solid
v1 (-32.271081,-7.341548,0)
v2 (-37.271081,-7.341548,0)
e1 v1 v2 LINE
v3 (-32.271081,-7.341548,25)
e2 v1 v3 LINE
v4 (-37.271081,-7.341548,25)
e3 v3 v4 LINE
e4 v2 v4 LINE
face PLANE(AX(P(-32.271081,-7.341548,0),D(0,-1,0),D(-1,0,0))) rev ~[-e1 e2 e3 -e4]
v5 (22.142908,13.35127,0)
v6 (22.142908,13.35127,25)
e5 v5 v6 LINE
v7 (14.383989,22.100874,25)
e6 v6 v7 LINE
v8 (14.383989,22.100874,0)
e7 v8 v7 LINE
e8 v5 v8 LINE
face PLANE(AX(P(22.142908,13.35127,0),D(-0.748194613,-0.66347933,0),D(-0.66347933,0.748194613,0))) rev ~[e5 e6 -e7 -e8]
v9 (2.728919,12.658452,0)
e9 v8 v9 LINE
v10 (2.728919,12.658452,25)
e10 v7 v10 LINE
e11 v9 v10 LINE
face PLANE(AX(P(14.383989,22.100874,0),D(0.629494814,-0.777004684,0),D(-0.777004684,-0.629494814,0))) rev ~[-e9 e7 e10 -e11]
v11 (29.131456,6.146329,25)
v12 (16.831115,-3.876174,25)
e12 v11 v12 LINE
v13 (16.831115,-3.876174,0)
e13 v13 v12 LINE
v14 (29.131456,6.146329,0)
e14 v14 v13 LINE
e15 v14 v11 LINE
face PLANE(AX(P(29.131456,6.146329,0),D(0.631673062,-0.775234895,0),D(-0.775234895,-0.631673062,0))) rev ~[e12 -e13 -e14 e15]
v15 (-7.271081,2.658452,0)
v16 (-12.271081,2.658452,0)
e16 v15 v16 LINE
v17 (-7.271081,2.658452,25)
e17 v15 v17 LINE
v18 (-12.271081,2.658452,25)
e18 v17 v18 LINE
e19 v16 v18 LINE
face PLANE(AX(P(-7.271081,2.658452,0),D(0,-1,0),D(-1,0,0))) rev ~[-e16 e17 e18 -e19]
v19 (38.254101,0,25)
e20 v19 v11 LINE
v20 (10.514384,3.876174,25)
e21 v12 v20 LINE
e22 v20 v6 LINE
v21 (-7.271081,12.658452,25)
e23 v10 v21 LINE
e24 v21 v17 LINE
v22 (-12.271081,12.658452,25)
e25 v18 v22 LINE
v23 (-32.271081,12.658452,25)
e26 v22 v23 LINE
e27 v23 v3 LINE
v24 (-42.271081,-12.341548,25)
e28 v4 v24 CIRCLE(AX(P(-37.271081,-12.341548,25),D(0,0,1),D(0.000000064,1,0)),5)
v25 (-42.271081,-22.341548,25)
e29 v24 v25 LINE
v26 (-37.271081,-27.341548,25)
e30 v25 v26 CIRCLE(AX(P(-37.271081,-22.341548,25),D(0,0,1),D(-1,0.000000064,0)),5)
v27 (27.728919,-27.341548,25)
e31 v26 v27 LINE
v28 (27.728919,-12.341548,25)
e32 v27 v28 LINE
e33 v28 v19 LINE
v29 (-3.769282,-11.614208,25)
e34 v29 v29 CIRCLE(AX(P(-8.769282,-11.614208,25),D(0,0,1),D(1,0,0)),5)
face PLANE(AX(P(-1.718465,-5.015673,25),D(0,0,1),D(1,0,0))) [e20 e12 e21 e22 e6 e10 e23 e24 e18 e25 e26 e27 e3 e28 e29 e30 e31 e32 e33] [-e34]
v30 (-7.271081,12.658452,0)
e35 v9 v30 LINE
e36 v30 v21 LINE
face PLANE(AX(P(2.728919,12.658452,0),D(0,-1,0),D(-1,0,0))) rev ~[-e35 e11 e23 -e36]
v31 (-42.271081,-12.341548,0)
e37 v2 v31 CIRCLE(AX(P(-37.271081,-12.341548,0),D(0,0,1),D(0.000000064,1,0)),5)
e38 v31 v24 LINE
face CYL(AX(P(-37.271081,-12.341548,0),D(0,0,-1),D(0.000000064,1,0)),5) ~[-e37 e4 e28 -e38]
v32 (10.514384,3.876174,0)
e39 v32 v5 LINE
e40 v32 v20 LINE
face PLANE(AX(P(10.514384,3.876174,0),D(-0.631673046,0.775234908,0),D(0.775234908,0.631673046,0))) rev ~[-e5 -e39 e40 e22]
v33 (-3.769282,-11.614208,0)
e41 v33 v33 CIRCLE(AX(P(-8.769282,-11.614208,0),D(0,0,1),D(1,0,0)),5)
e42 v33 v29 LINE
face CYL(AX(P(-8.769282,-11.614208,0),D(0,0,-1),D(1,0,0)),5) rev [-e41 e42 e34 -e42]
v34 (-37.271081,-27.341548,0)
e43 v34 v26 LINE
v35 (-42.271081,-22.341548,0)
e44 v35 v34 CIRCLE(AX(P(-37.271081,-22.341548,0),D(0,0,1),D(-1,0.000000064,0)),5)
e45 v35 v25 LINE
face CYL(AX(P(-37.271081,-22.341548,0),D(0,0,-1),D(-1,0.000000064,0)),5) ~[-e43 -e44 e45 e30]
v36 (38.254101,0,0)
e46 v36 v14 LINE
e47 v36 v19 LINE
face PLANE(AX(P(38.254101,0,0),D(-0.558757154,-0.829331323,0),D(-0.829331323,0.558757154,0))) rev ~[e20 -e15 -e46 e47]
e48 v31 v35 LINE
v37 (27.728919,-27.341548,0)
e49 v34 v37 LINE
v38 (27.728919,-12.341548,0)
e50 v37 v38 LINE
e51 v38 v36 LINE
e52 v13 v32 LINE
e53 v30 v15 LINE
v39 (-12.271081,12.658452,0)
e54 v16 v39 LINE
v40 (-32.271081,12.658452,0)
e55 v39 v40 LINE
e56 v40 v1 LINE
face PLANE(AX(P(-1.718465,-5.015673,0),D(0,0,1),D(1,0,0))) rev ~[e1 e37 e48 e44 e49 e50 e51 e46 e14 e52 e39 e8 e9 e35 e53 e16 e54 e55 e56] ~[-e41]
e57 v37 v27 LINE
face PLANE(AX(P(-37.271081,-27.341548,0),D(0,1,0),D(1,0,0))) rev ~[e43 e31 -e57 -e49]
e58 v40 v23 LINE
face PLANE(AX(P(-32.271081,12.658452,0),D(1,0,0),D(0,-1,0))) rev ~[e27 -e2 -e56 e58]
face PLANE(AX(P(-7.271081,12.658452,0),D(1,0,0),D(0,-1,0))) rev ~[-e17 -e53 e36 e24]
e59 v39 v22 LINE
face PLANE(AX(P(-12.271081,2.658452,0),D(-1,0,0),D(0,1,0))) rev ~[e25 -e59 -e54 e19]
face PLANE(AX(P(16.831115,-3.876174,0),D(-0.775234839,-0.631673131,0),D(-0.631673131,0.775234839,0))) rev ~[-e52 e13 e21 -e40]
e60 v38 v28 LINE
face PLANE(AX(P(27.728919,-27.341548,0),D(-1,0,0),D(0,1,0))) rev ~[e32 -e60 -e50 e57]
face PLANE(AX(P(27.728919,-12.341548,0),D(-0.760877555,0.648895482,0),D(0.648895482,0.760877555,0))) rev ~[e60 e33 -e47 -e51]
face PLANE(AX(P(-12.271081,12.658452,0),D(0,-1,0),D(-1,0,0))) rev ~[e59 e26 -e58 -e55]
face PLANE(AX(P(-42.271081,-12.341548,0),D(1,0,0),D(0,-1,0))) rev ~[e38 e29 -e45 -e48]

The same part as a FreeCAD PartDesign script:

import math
import FreeCAD as App
import Part
import Sketcher
from FreeCAD import Vector

doc = App.newDocument("Part")
body = doc.addObject("PartDesign::Body", "Body")

sketch1 = body.newObject("Sketcher::SketchObject", "Sketch")
sketch1.AttachmentSupport = (doc.getObject("XY_Plane"), [""])
sketch1.MapMode = "FlatFace"
sketch1.addGeometry(Part.LineSegment(Vector(-37.3, -27.3, 0), Vector(27.7, -27.3, 0)), False)
sketch1.addGeometry(Part.LineSegment(Vector(27.7, -27.3, 0), Vector(27.7, -12.3, 0)), False)
sketch1.addGeometry(Part.LineSegment(Vector(27.7, -12.3, 0), Vector(38.3, 0, 0)), False)
sketch1.addGeometry(Part.LineSegment(Vector(38.3, 0, 0), Vector(29.1, 6.1, 0)), False)
sketch1.addGeometry(Part.LineSegment(Vector(29.1, 6.1, 0), Vector(16.8, -3.9, 0)), False)
sketch1.addGeometry(Part.LineSegment(Vector(16.8, -3.9, 0), Vector(10.5, 3.9, 0)), False)
sketch1.addGeometry(Part.LineSegment(Vector(10.5, 3.9, 0), Vector(22.1, 13.4, 0)), False)
sketch1.addGeometry(Part.LineSegment(Vector(22.1, 13.4, 0), Vector(14.4, 22.1, 0)), False)
sketch1.addGeometry(Part.LineSegment(Vector(14.4, 22.1, 0), Vector(2.7, 12.7, 0)), False)
sketch1.addGeometry(Part.LineSegment(Vector(2.7, 12.7, 0), Vector(-7.3, 12.7, 0)), False)
sketch1.addGeometry(Part.LineSegment(Vector(-7.3, 12.7, 0), Vector(-7.3, 2.7, 0)), False)
sketch1.addGeometry(Part.LineSegment(Vector(-7.3, 2.7, 0), Vector(-12.3, 2.7, 0)), False)
sketch1.addGeometry(Part.LineSegment(Vector(-12.3, 2.7, 0), Vector(-12.3, 12.7, 0)), False)
sketch1.addGeometry(Part.LineSegment(Vector(-12.3, 12.7, 0), Vector(-32.3, 12.7, 0)), False)
sketch1.addGeometry(Part.LineSegment(Vector(-32.3, 12.7, 0), Vector(-32.3, -7.3, 0)), False)
sketch1.addGeometry(Part.LineSegment(Vector(-32.3, -7.3, 0), Vector(-37.3, -7.3, 0)), False)
sketch1.addGeometry(Part.ArcOfCircle(Part.Circle(Vector(-37.3, -12.3, 0), Vector(0, 0, 1), 5), math.radians(90), math.radians(180)), False)
sketch1.addGeometry(Part.LineSegment(Vector(-42.3, -12.3, 0), Vector(-42.3, -22.3, 0)), False)
sketch1.addGeometry(Part.ArcOfCircle(Part.Circle(Vector(-37.3, -22.3, 0), Vector(0, 0, 1), 5), math.radians(180), math.radians(270)), False)
sketch1.addGeometry(Part.Circle(Vector(-8.8, -11.6, 0), Vector(0, 0, 1), 5), False)
sketch1.addConstraint(Sketcher.Constraint("Coincident", 0, 2, 1, 1))
sketch1.addConstraint(Sketcher.Constraint("Coincident", 1, 2, 2, 1))
sketch1.addConstraint(Sketcher.Constraint("Coincident", 2, 2, 3, 1))
sketch1.addConstraint(Sketcher.Constraint("Coincident", 3, 2, 4, 1))
sketch1.addConstraint(Sketcher.Constraint("Coincident", 4, 2, 5, 1))
sketch1.addConstraint(Sketcher.Constraint("Coincident", 5, 2, 6, 1))
sketch1.addConstraint(Sketcher.Constraint("Coincident", 6, 2, 7, 1))
sketch1.addConstraint(Sketcher.Constraint("Coincident", 7, 2, 8, 1))
sketch1.addConstraint(Sketcher.Constraint("Coincident", 8, 2, 9, 1))
sketch1.addConstraint(Sketcher.Constraint("Coincident", 9, 2, 10, 1))
sketch1.addConstraint(Sketcher.Constraint("Coincident", 10, 2, 11, 1))
sketch1.addConstraint(Sketcher.Constraint("Coincident", 11, 2, 12, 1))
sketch1.addConstraint(Sketcher.Constraint("Coincident", 12, 2, 13, 1))
sketch1.addConstraint(Sketcher.Constraint("Coincident", 13, 2, 14, 1))
sketch1.addConstraint(Sketcher.Constraint("Coincident", 14, 2, 15, 1))
sketch1.addConstraint(Sketcher.Constraint("Tangent", 15, 2, 16, 1))
sketch1.addConstraint(Sketcher.Constraint("Tangent", 16, 2, 17, 1))
sketch1.addConstraint(Sketcher.Constraint("Tangent", 17, 2, 18, 1))
sketch1.addConstraint(Sketcher.Constraint("Tangent", 18, 2, 0, 1))
sketch1.addConstraint(Sketcher.Constraint("Horizontal", 0))
sketch1.addConstraint(Sketcher.Constraint("Vertical", 1))
sketch1.addConstraint(Sketcher.Constraint("Horizontal", 9))
sketch1.addConstraint(Sketcher.Constraint("Vertical", 10))
sketch1.addConstraint(Sketcher.Constraint("Horizontal", 11))
sketch1.addConstraint(Sketcher.Constraint("Vertical", 12))
sketch1.addConstraint(Sketcher.Constraint("Horizontal", 13))
sketch1.addConstraint(Sketcher.Constraint("Vertical", 14))
sketch1.addConstraint(Sketcher.Constraint("Horizontal", 15))
sketch1.addConstraint(Sketcher.Constraint("Vertical", 17))
sketch1.addConstraint(Sketcher.Constraint("Equal", 16, 18))
sketch1.addConstraint(Sketcher.Constraint("Equal", 18, 19))
sketch1.addConstraint(Sketcher.Constraint("PointOnObject", 2, 2, -1))
sketch1.addConstraint(Sketcher.Constraint("Perpendicular", 4, 5))
sketch1.addConstraint(Sketcher.Constraint("Perpendicular", 5, 6))
sketch1.addConstraint(Sketcher.Constraint("Horizontal", 16, 3, 1, 2))
sketch1.addConstraint(Sketcher.Constraint("Horizontal", 9, 2, 12, 2))
sketch1.addConstraint(Sketcher.Constraint("Equal", 11, 15))
sketch1.addConstraint(Sketcher.Constraint("Equal", 9, 10))
sketch1.addConstraint(Sketcher.Constraint("Equal", 13, 14))
sketch1.addConstraint(Sketcher.Constraint("Equal", 12, 17))
sketch1.addConstraint(Sketcher.Constraint("Equal", 6, 8))
sketch1.addConstraint(Sketcher.Constraint("Diameter", 19, 10.0))
sketch1.addConstraint(Sketcher.Constraint("DistanceX", 0, 1, 0, 2, 65.0))
sketch1.addConstraint(Sketcher.Constraint("DistanceX", 9, 2, 9, 1, 10.0))
sketch1.addConstraint(Sketcher.Constraint("DistanceX", 11, 2, 11, 1, 5.0))
sketch1.addConstraint(Sketcher.Constraint("DistanceX", 13, 2, 13, 1, 20.0))
sketch1.addConstraint(Sketcher.Constraint("Distance", 3, 11.000001))
sketch1.addConstraint(Sketcher.Constraint("Distance", 5, 10.0))
sketch1.addConstraint(Sketcher.Constraint("Distance", 6, 15.0))
sketch1.addConstraint(Sketcher.Constraint("Distance", 4, 15.866599))
sketch1.addConstraint(Sketcher.Constraint("DistanceX", -1, 1, 2, 2, 38.254101))
sketch1.addConstraint(Sketcher.Constraint("DistanceX", 16, 3, 19, 3, 28.501799))
sketch1.addConstraint(Sketcher.Constraint("DistanceY", 5, 2, 7, 2, 18.2247))
sketch1.addConstraint(Sketcher.Constraint("Distance", 2, 16.22015))
sketch1.addConstraint(Sketcher.Constraint("Distance", 7, 11.694289))
sketch1.addConstraint(Sketcher.Constraint("DistanceX", 16, 3, -1, 1, 37.271081))
sketch1.addConstraint(Sketcher.Constraint("DistanceY", -1, 1, 3, 2, 6.146329))
sketch1.addConstraint(Sketcher.Constraint("DistanceY", 16, 3, 19, 3, 0.72734))
pad1 = body.newObject("PartDesign::Pad", "Pad")
pad1.Profile = sketch1
pad1.Length = 25

sketch2 = body.newObject("Sketcher::SketchObject", "Sketch001")
sketch2.AttachmentSupport = (doc.getObject("XY_Plane"), [""])
sketch2.MapMode = "FlatFace"
sketch2.addGeometry(Part.LineSegment(Vector(-37.3, -27.3, 0), Vector(27.7, -27.3, 0)), False)
sketch2.addGeometry(Part.LineSegment(Vector(27.7, -27.3, 0), Vector(27.7, -12.3, 0)), False)
sketch2.addGeometry(Part.LineSegment(Vector(27.7, -12.3, 0), Vector(38.3, 0, 0)), False)
sketch2.addGeometry(Part.LineSegment(Vector(38.3, 0, 0), Vector(29.1, 6.1, 0)), False)
sketch2.addGeometry(Part.LineSegment(Vector(29.1, 6.1, 0), Vector(16.8, -3.9, 0)), False)
sketch2.addGeometry(Part.LineSegment(Vector(16.8, -3.9, 0), Vector(10.5, 3.9, 0)), False)
sketch2.addGeometry(Part.LineSegment(Vector(10.5, 3.9, 0), Vector(22.1, 13.4, 0)), False)
sketch2.addGeometry(Part.LineSegment(Vector(22.1, 13.4, 0), Vector(14.4, 22.1, 0)), False)
sketch2.addGeometry(Part.LineSegment(Vector(14.4, 22.1, 0), Vector(2.7, 12.7, 0)), False)
sketch2.addGeometry(Part.LineSegment(Vector(2.7, 12.7, 0), Vector(-7.3, 12.7, 0)), False)
sketch2.addGeometry(Part.LineSegment(Vector(-7.3, 12.7, 0), Vector(-7.3, 2.7, 0)), False)
sketch2.addGeometry(Part.LineSegment(Vector(-7.3, 2.7, 0), Vector(-12.3, 2.7, 0)), False)
sketch2.addGeometry(Part.LineSegment(Vector(-12.3, 2.7, 0), Vector(-12.3, 12.7, 0)), False)
sketch2.addGeometry(Part.LineSegment(Vector(-12.3, 12.7, 0), Vector(-32.3, 12.7, 0)), False)
sketch2.addGeometry(Part.LineSegment(Vector(-32.3, 12.7, 0), Vector(-32.3, -7.3, 0)), False)
sketch2.addGeometry(Part.LineSegment(Vector(-32.3, -7.3, 0), Vector(-37.3, -7.3, 0)), False)
sketch2.addGeometry(Part.ArcOfCircle(Part.Circle(Vector(-37.3, -12.3, 0), Vector(0, 0, 1), 5), math.radians(90), math.radians(180)), False)
sketch2.addGeometry(Part.LineSegment(Vector(-42.3, -12.3, 0), Vector(-42.3, -22.3, 0)), False)
sketch2.addGeometry(Part.ArcOfCircle(Part.Circle(Vector(-37.3, -22.3, 0), Vector(0, 0, 1), 5), math.radians(180), math.radians(270)), False)
sketch2.addGeometry(Part.Circle(Vector(-8.8, -11.6, 0), Vector(0, 0, 1), 5), False)
sketch2.addConstraint(Sketcher.Constraint("Coincident", 0, 2, 1, 1))
sketch2.addConstraint(Sketcher.Constraint("Coincident", 1, 2, 2, 1))
sketch2.addConstraint(Sketcher.Constraint("Coincident", 2, 2, 3, 1))
sketch2.addConstraint(Sketcher.Constraint("Coincident", 3, 2, 4, 1))
sketch2.addConstraint(Sketcher.Constraint("Coincident", 4, 2, 5, 1))
sketch2.addConstraint(Sketcher.Constraint("Coincident", 5, 2, 6, 1))
sketch2.addConstraint(Sketcher.Constraint("Coincident", 6, 2, 7, 1))
sketch2.addConstraint(Sketcher.Constraint("Coincident", 7, 2, 8, 1))
sketch2.addConstraint(Sketcher.Constraint("Coincident", 8, 2, 9, 1))
sketch2.addConstraint(Sketcher.Constraint("Coincident", 9, 2, 10, 1))
sketch2.addConstraint(Sketcher.Constraint("Coincident", 10, 2, 11, 1))
sketch2.addConstraint(Sketcher.Constraint("Coincident", 11, 2, 12, 1))
sketch2.addConstraint(Sketcher.Constraint("Coincident", 12, 2, 13, 1))
sketch2.addConstraint(Sketcher.Constraint("Coincident", 13, 2, 14, 1))
sketch2.addConstraint(Sketcher.Constraint("Coincident", 14, 2, 15, 1))
sketch2.addConstraint(Sketcher.Constraint("Tangent", 15, 2, 16, 1))
sketch2.addConstraint(Sketcher.Constraint("Tangent", 16, 2, 17, 1))
sketch2.addConstraint(Sketcher.Constraint("Tangent", 17, 2, 18, 1))
sketch2.addConstraint(Sketcher.Constraint("Tangent", 18, 2, 0, 1))
sketch2.addConstraint(Sketcher.Constraint("Horizontal", 0))
sketch2.addConstraint(Sketcher.Constraint("Vertical", 1))
sketch2.addConstraint(Sketcher.Constraint("Horizontal", 9))
sketch2.addConstraint(Sketcher.Constraint("Vertical", 10))
sketch2.addConstraint(Sketcher.Constraint("Horizontal", 11))
sketch2.addConstraint(Sketcher.Constraint("Vertical", 12))
sketch2.addConstraint(Sketcher.Constraint("Horizontal", 13))
sketch2.addConstraint(Sketcher.Constraint("Vertical", 14))
sketch2.addConstraint(Sketcher.Constraint("Horizontal", 15))
sketch2.addConstraint(Sketcher.Constraint("Vertical", 17))
sketch2.addConstraint(Sketcher.Constraint("Equal", 16, 18))
sketch2.addConstraint(Sketcher.Constraint("Equal", 18, 19))
sketch2.addConstraint(Sketcher.Constraint("PointOnObject", 2, 2, -1))
sketch2.addConstraint(Sketcher.Constraint("Perpendicular", 4, 5))
sketch2.addConstraint(Sketcher.Constraint("Perpendicular", 5, 6))
sketch2.addConstraint(Sketcher.Constraint("Horizontal", 16, 3, 1, 2))
sketch2.addConstraint(Sketcher.Constraint("Horizontal", 9, 2, 12, 2))
sketch2.addConstraint(Sketcher.Constraint("Equal", 11, 15))
sketch2.addConstraint(Sketcher.Constraint("Equal", 9, 10))
sketch2.addConstraint(Sketcher.Constraint("Equal", 13, 14))
sketch2.addConstraint(Sketcher.Constraint("Equal", 12, 17))
sketch2.addConstraint(Sketcher.Constraint("Equal", 6, 8))
sketch2.addConstraint(Sketcher.Constraint("Diameter", 19, 10.0))
sketch2.addConstraint(Sketcher.Constraint("DistanceX", 0, 1, 0, 2, 65.0))
sketch2.addConstraint(Sketcher.Constraint("DistanceX", 9, 2, 9, 1, 10.0))
sketch2.addConstraint(Sketcher.Constraint("DistanceX", 11, 2, 11, 1, 5.0))
sketch2.addConstraint(Sketcher.Constraint("DistanceX", 13, 2, 13, 1, 20.0))
sketch2.addConstraint(Sketcher.Constraint("Distance", 3, 11.000001))
sketch2.addConstraint(Sketcher.Constraint("Distance", 5, 10.0))
sketch2.addConstraint(Sketcher.Constraint("Distance", 6, 15.0))
sketch2.addConstraint(Sketcher.Constraint("Distance", 4, 15.866599))
sketch2.addConstraint(Sketcher.Constraint("DistanceX", -1, 1, 2, 2, 38.254101))
sketch2.addConstraint(Sketcher.Constraint("DistanceX", 16, 3, 19, 3, 28.501799))
sketch2.addConstraint(Sketcher.Constraint("DistanceY", 5, 2, 7, 2, 18.2247))
sketch2.addConstraint(Sketcher.Constraint("Distance", 2, 16.22015))
sketch2.addConstraint(Sketcher.Constraint("Distance", 7, 11.694289))
sketch2.addConstraint(Sketcher.Constraint("DistanceX", 16, 3, -1, 1, 37.271081))
sketch2.addConstraint(Sketcher.Constraint("DistanceY", -1, 1, 3, 2, 6.146329))
sketch2.addConstraint(Sketcher.Constraint("DistanceY", 16, 3, 19, 3, 0.72734))
pad2 = body.newObject("PartDesign::Pad", "Pad001")
pad2.Profile = sketch2
pad2.Length = 25

doc.recompute()
